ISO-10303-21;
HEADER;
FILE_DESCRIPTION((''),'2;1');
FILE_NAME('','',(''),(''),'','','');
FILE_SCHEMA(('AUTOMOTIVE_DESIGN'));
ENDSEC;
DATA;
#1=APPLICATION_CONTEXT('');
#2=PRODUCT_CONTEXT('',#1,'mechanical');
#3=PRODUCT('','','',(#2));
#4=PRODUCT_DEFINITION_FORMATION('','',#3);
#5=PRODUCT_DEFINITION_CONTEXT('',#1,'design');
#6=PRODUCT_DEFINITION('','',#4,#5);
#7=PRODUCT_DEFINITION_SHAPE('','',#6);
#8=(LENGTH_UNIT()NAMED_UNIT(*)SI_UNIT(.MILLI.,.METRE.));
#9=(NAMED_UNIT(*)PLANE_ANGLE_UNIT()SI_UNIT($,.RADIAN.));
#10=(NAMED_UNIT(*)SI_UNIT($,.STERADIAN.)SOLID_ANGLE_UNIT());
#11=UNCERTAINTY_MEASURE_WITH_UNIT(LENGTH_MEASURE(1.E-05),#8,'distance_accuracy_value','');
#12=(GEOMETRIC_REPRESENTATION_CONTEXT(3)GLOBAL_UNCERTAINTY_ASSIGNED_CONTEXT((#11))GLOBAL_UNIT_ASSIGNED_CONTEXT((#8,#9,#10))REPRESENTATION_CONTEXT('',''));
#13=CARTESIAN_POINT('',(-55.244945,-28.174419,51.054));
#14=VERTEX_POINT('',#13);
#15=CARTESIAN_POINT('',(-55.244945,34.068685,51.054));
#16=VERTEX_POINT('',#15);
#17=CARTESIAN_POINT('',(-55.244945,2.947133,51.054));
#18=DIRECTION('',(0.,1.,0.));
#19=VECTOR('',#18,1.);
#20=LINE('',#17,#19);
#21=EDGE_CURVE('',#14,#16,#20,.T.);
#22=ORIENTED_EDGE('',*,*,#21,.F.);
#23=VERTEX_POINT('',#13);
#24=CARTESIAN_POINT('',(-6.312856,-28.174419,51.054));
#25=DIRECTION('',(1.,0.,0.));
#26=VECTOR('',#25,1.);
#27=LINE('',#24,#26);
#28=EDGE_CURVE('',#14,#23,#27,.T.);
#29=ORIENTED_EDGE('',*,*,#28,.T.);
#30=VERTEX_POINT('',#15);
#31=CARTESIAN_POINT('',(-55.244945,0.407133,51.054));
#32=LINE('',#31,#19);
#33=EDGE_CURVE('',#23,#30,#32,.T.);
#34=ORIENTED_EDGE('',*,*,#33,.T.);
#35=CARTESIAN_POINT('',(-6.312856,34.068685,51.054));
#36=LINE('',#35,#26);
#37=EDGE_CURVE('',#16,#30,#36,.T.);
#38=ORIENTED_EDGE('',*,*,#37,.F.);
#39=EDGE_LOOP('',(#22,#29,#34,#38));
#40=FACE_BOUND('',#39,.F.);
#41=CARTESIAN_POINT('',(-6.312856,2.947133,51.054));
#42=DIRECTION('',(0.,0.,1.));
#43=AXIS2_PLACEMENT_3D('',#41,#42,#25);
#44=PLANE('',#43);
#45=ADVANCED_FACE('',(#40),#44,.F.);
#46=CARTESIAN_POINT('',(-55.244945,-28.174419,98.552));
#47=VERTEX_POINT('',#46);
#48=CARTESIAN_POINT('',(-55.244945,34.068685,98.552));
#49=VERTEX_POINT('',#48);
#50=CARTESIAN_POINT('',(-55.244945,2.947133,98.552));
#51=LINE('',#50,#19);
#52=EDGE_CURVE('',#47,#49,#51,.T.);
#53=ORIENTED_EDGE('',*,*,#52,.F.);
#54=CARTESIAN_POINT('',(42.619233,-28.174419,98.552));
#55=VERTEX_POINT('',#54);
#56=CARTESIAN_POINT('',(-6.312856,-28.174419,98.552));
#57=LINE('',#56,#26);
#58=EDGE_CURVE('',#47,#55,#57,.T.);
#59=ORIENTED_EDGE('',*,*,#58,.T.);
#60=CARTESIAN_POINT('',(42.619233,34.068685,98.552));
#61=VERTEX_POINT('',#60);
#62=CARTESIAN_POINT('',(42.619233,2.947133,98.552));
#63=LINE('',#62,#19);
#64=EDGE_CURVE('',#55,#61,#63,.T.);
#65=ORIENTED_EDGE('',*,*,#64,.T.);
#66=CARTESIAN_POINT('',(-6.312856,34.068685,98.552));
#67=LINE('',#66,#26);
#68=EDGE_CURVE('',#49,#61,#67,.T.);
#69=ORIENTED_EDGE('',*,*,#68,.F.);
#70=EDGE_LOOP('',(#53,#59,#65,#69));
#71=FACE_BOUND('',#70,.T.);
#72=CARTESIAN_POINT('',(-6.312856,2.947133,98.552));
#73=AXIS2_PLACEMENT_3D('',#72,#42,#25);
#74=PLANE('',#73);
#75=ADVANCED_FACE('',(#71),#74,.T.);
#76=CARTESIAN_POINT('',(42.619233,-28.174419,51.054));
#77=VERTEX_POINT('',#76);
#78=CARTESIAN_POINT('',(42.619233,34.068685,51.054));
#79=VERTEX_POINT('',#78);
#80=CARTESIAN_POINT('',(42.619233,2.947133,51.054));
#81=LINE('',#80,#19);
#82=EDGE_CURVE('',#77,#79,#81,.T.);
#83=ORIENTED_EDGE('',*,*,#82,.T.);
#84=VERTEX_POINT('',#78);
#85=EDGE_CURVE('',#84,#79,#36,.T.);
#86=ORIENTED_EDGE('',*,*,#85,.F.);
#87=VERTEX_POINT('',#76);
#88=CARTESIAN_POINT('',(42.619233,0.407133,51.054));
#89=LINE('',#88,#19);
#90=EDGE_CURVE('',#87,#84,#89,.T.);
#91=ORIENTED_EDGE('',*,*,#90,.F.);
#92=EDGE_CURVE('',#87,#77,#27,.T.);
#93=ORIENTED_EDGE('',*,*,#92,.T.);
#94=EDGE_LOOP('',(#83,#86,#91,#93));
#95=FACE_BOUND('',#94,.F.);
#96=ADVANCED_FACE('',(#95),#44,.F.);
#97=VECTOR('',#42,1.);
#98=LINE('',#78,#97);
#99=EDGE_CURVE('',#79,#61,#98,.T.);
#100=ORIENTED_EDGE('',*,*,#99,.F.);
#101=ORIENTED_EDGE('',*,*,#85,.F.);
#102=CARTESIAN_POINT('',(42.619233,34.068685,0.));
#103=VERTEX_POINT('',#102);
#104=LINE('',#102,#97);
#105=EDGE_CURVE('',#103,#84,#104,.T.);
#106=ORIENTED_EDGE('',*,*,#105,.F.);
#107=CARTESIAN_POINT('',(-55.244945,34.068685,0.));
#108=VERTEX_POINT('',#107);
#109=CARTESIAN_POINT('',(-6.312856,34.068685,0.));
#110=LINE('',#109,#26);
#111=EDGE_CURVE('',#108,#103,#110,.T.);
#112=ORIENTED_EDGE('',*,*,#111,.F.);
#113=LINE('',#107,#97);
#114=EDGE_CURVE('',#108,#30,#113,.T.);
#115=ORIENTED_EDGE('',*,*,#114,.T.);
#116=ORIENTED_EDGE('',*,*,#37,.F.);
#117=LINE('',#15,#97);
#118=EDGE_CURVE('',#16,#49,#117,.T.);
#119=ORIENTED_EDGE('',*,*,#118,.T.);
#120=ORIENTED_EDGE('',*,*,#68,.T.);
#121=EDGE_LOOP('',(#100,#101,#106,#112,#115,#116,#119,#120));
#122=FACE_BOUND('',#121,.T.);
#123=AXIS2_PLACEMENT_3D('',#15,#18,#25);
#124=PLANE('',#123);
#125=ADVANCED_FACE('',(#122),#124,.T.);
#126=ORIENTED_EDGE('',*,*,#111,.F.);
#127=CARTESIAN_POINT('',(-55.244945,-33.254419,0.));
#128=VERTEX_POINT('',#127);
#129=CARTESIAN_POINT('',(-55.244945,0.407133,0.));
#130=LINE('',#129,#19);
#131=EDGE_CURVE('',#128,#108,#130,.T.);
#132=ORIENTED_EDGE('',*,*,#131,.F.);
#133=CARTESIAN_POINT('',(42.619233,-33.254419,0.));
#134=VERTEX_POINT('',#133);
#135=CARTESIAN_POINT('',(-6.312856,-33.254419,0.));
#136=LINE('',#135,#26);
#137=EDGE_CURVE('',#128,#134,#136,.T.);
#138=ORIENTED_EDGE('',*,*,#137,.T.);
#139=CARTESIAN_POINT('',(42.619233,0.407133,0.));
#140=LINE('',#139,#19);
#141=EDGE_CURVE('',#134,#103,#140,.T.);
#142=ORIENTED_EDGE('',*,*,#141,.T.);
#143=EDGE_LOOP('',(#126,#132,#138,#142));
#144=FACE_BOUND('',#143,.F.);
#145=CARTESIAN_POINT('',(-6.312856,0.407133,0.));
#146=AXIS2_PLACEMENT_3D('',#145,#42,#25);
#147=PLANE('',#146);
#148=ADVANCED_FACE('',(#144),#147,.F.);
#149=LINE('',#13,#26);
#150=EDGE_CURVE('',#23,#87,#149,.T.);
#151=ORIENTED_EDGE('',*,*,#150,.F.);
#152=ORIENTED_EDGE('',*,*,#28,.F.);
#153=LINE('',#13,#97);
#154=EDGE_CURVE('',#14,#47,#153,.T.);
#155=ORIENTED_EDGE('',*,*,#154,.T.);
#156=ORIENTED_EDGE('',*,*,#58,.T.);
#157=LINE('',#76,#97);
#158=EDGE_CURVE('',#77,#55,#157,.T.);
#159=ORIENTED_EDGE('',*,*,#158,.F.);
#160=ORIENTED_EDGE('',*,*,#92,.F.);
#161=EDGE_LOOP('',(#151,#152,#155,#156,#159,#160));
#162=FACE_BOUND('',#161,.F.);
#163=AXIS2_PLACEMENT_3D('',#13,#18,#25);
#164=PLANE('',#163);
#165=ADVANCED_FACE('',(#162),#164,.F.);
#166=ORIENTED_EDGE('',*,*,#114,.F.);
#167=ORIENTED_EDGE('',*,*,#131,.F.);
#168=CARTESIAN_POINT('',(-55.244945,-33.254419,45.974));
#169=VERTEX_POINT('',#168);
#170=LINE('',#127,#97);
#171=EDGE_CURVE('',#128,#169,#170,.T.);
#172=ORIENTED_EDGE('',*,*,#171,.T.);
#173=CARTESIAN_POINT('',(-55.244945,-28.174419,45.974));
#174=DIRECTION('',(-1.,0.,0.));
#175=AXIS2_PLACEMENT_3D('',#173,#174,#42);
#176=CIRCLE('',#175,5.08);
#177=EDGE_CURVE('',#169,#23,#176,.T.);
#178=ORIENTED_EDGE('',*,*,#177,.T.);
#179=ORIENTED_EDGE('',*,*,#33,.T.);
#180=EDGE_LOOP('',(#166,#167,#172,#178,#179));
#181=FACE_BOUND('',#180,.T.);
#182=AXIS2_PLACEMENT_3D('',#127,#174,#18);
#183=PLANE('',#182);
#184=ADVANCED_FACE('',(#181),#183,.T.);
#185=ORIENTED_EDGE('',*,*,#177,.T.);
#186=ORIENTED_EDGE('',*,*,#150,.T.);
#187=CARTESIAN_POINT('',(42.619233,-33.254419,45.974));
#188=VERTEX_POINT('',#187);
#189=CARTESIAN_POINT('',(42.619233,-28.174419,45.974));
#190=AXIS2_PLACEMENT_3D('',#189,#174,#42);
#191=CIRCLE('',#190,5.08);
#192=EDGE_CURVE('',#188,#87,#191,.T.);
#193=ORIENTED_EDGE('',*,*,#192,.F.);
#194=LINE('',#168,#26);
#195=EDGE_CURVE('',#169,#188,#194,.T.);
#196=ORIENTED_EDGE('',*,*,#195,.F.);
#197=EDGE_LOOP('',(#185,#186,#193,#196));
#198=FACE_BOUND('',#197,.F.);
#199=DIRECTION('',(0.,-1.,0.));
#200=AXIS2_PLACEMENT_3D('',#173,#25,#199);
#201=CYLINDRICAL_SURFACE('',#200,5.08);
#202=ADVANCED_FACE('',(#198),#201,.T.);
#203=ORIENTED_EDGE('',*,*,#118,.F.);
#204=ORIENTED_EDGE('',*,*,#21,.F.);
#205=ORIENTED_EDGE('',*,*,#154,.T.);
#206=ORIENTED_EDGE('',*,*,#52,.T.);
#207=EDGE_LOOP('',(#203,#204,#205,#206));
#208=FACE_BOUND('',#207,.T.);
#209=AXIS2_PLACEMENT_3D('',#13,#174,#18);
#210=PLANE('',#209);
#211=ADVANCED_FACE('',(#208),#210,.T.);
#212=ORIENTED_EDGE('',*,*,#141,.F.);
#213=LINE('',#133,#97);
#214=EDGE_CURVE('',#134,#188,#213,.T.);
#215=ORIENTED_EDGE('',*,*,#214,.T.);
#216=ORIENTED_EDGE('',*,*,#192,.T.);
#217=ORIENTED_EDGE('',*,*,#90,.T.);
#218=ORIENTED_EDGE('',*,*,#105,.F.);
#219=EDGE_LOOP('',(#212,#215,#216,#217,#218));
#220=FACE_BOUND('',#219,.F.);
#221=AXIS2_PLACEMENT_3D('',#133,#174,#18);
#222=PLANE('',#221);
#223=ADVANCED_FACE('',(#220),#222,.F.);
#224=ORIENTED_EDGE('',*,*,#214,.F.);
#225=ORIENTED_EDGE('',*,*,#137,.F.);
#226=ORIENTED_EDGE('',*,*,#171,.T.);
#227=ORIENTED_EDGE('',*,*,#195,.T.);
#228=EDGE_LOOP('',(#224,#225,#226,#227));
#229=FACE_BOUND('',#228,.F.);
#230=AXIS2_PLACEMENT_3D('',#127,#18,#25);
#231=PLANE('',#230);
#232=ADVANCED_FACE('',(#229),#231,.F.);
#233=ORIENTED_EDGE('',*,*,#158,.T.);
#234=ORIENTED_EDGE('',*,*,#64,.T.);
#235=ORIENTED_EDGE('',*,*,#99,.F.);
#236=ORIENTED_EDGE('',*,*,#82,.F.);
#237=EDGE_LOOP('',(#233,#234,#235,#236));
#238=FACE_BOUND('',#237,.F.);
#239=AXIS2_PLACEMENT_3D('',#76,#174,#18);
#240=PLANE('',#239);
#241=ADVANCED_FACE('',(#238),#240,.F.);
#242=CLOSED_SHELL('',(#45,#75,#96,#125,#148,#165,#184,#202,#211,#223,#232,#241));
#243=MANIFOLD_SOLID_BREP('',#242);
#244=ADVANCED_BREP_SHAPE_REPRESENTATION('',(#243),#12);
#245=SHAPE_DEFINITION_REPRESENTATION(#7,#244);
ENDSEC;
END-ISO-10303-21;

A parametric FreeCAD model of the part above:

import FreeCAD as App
import Part
import Sketcher
from FreeCAD import Vector
Q = App.Units.Quantity


def edges_at(feature, points):
    """Names of the edges that pass closest to the given points."""
    edges = feature.Shape.Edges
    near = lambda p: min(range(len(edges)), key=lambda i: edges[i].distToShape(Part.Vertex(*p))[0])
    return sorted({f"Edge{near(p) + 1}" for p in points})


def add_polygon(sketch, points):
    """Adds a closed chain of lines whose ends are joined by coincident constraints."""
    first, n = sketch.GeometryCount, len(points)
    for a, b in zip(points, points[1:] + points[:1]):
        sketch.addGeometry(Part.LineSegment(App.Vector(*a, 0), App.Vector(*b, 0)), False)
    for i in range(n):
        sketch.addConstraint(Sketcher.Constraint("Coincident", first + i, 2, first + (i + 1) % n, 1))

doc = App.newDocument("Part")
body = doc.addObject("PartDesign::Body", "Body")

# Sketch on XY plane
sketch1 = body.newObject("Sketcher::SketchObject", "Sketch")
sketch1.AttachmentSupport = (doc.getObject("XY_Plane"), [""])
sketch1.MapMode = "FlatFace"
add_polygon(sketch1, [(-55, 34), (-55, -33), (43, -33), (43, 34)])  # lines 0-3
sketch1.addConstraint([
    Sketcher.Constraint("Vertical", 0),
    Sketcher.Constraint("Horizontal", 1),
    Sketcher.Constraint("Vertical", 2),
    Sketcher.Constraint("Horizontal", 3),
    Sketcher.Constraint("DistanceX", 1, 1, 1, 2, 97.864177),
    Sketcher.Constraint("DistanceY", 0, 2, 0, 1, 67.323104),
    Sketcher.Constraint("DistanceY", 0, 2, -1, 1, 33.254419),
    Sketcher.Constraint("DistanceX", 0, 2, -1, 1, 55.244945),
])
pad1 = body.newObject("PartDesign::Pad", "Pad")
pad1.Profile = sketch1
pad1.Length = Q("2.01 in")
doc.recompute()

fillet = body.newObject("PartDesign::Fillet", "Fillet")
fillet.Base = (pad1, edges_at(pad1, [(-6.313, -33.254, 51.054)]))
fillet.Radius = Q("0.2 in")

# Sketch on XY plane
sketch2 = body.newObject("Sketcher::SketchObject", "Sketch001")
sketch2.AttachmentSupport = (doc.getObject("XY_Plane"), [""])
sketch2.MapMode = "FlatFace"
sketch2.AttachmentOffset = App.Placement(Vector(0, 0, 2.01 * 25.4), App.Rotation())
add_polygon(sketch2, [(-55, 34), (-55, -28), (43, -28), (43, 34)])  # lines 0-3
sketch2.addConstraint([
    Sketcher.Constraint("Vertical", 0),
    Sketcher.Constraint("Horizontal", 1),
    Sketcher.Constraint("Vertical", 2),
    Sketcher.Constraint("Horizontal", 3),
    Sketcher.Constraint("DistanceX", 1, 1, 1, 2, 97.864178),
    Sketcher.Constraint("DistanceY", 0, 2, 0, 1, 62.243104),
    Sketcher.Constraint("DistanceY", 0, 2, -1, 1, 28.174419),
    Sketcher.Constraint("DistanceX", 0, 2, -1, 1, 55.244945),
])
pad2 = body.newObject("PartDesign::Pad", "Pad001")
pad2.Profile = sketch2
pad2.Length = Q("1.87 in")

doc.recompute()
